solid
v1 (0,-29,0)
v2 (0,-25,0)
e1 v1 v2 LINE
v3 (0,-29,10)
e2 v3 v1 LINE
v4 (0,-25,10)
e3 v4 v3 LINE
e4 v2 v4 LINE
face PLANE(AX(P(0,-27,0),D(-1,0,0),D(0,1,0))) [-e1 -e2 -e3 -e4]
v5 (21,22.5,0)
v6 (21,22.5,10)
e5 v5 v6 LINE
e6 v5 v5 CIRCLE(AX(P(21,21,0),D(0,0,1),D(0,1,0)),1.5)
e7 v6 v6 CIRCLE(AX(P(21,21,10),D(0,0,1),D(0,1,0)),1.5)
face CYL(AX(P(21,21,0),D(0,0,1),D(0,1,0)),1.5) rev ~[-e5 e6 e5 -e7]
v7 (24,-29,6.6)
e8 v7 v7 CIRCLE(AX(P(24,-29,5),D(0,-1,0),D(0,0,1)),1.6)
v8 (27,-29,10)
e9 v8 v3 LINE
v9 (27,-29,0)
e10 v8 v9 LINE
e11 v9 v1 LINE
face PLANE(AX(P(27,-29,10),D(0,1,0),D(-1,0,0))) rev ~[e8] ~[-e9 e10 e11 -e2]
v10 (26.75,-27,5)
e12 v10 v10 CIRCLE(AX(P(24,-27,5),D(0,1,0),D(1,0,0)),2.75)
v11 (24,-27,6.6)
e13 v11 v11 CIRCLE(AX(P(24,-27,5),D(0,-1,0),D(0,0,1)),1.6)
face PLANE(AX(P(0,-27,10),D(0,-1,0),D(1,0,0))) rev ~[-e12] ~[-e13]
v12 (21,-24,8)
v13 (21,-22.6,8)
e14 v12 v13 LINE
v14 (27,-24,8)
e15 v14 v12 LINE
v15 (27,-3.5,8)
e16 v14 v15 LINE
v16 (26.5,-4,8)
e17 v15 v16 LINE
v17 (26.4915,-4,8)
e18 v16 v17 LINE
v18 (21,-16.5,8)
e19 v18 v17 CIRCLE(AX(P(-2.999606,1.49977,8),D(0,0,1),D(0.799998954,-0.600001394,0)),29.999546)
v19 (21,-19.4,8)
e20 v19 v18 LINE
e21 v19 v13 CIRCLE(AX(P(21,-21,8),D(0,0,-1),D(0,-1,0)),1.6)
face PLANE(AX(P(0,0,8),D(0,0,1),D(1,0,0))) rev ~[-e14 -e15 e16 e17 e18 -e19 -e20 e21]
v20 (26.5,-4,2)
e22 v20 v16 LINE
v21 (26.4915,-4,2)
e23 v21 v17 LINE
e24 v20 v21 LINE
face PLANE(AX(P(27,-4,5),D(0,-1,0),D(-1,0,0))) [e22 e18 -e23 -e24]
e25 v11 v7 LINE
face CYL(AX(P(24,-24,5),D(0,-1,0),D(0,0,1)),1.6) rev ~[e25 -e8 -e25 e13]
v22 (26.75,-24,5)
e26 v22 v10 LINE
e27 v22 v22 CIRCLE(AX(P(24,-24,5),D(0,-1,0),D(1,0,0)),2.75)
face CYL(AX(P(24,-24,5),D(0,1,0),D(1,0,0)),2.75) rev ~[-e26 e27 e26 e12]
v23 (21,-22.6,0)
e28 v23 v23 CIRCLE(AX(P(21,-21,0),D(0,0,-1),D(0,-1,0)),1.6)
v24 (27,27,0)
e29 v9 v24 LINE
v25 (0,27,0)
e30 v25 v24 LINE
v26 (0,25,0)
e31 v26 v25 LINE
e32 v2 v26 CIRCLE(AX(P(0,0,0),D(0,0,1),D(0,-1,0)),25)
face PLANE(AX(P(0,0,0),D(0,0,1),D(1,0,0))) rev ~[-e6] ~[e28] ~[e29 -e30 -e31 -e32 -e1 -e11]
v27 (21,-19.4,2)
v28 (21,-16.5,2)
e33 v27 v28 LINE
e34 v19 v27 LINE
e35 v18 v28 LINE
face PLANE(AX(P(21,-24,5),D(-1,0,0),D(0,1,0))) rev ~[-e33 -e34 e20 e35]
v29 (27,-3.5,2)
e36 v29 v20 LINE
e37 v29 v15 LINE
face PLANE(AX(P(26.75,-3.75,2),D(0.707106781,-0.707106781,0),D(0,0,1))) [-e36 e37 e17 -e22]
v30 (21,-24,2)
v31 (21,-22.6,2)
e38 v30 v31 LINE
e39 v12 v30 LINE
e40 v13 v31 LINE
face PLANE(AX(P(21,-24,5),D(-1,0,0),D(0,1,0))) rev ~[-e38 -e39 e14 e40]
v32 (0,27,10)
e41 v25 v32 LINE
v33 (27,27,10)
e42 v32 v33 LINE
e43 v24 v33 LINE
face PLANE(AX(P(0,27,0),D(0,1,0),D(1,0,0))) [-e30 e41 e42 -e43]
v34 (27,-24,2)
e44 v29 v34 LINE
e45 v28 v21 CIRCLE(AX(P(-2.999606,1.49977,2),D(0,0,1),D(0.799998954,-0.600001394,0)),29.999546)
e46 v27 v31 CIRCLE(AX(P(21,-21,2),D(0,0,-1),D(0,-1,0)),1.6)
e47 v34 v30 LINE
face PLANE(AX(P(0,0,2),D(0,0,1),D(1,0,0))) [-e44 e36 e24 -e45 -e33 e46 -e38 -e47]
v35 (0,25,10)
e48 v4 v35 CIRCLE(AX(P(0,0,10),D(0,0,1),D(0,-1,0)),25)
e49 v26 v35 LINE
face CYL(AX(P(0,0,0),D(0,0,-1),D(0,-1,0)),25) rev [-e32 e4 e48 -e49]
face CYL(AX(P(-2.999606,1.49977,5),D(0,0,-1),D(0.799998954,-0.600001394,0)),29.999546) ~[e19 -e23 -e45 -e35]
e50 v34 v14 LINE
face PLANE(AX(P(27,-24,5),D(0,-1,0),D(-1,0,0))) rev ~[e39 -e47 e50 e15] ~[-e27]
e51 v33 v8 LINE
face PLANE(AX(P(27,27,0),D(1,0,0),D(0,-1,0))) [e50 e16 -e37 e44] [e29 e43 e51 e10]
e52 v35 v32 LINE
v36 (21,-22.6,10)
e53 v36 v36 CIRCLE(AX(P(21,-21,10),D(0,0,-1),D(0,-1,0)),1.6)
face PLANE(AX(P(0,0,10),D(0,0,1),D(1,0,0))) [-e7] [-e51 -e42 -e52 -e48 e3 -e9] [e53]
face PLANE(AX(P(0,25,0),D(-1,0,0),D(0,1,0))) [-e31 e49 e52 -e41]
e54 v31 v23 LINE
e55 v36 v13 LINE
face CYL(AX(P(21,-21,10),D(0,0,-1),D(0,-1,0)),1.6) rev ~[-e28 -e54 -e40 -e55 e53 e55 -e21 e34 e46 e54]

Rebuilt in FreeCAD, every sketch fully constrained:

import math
import FreeCAD as App
import Part
import Sketcher
from FreeCAD import Vector


def edges_at(feature, points):
    """Names of the edges that pass closest to the given points."""
    edges = feature.Shape.Edges
    near = lambda p: min(range(len(edges)), key=lambda i: edges[i].distToShape(Part.Vertex(*p))[0])
    return sorted({f"Edge{near(p) + 1}" for p in points})


def add_polygon(sketch, points):
    """Adds a closed chain of lines whose ends are joined by coincident constraints."""
    first, n = sketch.GeometryCount, len(points)
    for a, b in zip(points, points[1:] + points[:1]):
        sketch.addGeometry(Part.LineSegment(App.Vector(*a, 0), App.Vector(*b, 0)), False)
    for i in range(n):
        sketch.addConstraint(Sketcher.Constraint("Coincident", first + i, 2, first + (i + 1) % n, 1))

doc = App.newDocument("Part")
body = doc.addObject("PartDesign::Body", "Body")

# Sketch on XY plane
sketch1 = body.newObject("Sketcher::SketchObject", "Sketch")
sketch1.AttachmentSupport = (doc.getObject("XY_Plane"), [""])
sketch1.MapMode = "FlatFace"
sketch1.addGeometry(Part.ArcOfCircle(Part.Circle(Vector(0, 0, 0), Vector(0, 0, 1), 25), math.radians(-90), math.radians(90)), False)
sketch1.addGeometry(Part.LineSegment(Vector(0, -25, 0), Vector(0, -27, 0)), False)
sketch1.addGeometry(Part.LineSegment(Vector(0, -27, 0), Vector(27, -27, 0)), False)
sketch1.addGeometry(Part.LineSegment(Vector(27, -27, 0), Vector(27, 27, 0)), False)
sketch1.addGeometry(Part.LineSegment(Vector(27, 27, 0), Vector(0, 27, 0)), False)
sketch1.addGeometry(Part.LineSegment(Vector(0, 27, 0), Vector(0, 25, 0)), False)
sketch1.addConstraint(Sketcher.Constraint("Coincident", 0, 1, 1, 1))
sketch1.addConstraint(Sketcher.Constraint("Coincident", 1, 2, 2, 1))
sketch1.addConstraint(Sketcher.Constraint("Coincident", 2, 2, 3, 1))
sketch1.addConstraint(Sketcher.Constraint("Coincident", 3, 2, 4, 1))
sketch1.addConstraint(Sketcher.Constraint("Coincident", 4, 2, 5, 1))
sketch1.addConstraint(Sketcher.Constraint("Coincident", 5, 2, 0, 2))
sketch1.addConstraint(Sketcher.Constraint("Vertical", 1))
sketch1.addConstraint(Sketcher.Constraint("Horizontal", 2))
sketch1.addConstraint(Sketcher.Constraint("Vertical", 3))
sketch1.addConstraint(Sketcher.Constraint("Horizontal", 4))
sketch1.addConstraint(Sketcher.Constraint("Vertical", 5))
sketch1.addConstraint(Sketcher.Constraint("Coincident", 0, 3, -1, 1))
sketch1.addConstraint(Sketcher.Constraint("Symmetric", 1, 2, 4, 2, -1, 1))
sketch1.addConstraint(Sketcher.Constraint("PointOnObject", 0, 1, -2))
sketch1.addConstraint(Sketcher.Constraint("Radius", 0, 25.0))
sketch1.addConstraint(Sketcher.Constraint("DistanceX", 2, 1, 2, 2, 27.0))
sketch1.addConstraint(Sketcher.Constraint("DistanceY", 1, 2, 1, 1, 2.0))
pad1 = body.newObject("PartDesign::Pad", "Pad")
pad1.Profile = sketch1
pad1.Length = 10

# Sketch on XY plane
sketch2 = body.newObject("Sketcher::SketchObject", "Sketch001")
sketch2.AttachmentSupport = (doc.getObject("XY_Plane"), [""])
sketch2.MapMode = "FlatFace"
sketch2.AttachmentOffset = App.Placement(Vector(0, 0, 5), App.Rotation())
sketch2.addGeometry(Part.LineSegment(Vector(21, -24, 0), Vector(27, -24, 0)), False)
sketch2.addGeometry(Part.LineSegment(Vector(27, -24, 0), Vector(27, -4, 0)), False)
sketch2.addGeometry(Part.LineSegment(Vector(27, -4, 0), Vector(26.5, -4, 0)), False)
sketch2.addGeometry(Part.ArcOfCircle(Part.Circle(Vector(-3, 1.5, 0), Vector(0, 0, 1), 30), math.radians(-37), math.radians(-11)), False)
sketch2.addGeometry(Part.LineSegment(Vector(21, -16.5, 0), Vector(21, -24, 0)), False)
sketch2.addConstraint(Sketcher.Constraint("Coincident", 0, 2, 1, 1))
sketch2.addConstraint(Sketcher.Constraint("Coincident", 1, 2, 2, 1))
sketch2.addConstraint(Sketcher.Constraint("Coincident", 2, 2, 3, 2))
sketch2.addConstraint(Sketcher.Constraint("Coincident", 3, 1, 4, 1))
sketch2.addConstraint(Sketcher.Constraint("Coincident", 4, 2, 0, 1))
sketch2.addConstraint(Sketcher.Constraint("Horizontal", 0))
sketch2.addConstraint(Sketcher.Constraint("Vertical", 1))
sketch2.addConstraint(Sketcher.Constraint("Horizontal", 2))
sketch2.addConstraint(Sketcher.Constraint("Vertical", 4))
sketch2.addConstraint(Sketcher.Constraint("Radius", 3, 30.0))
sketch2.addConstraint(Sketcher.Constraint("DistanceX", 0, 1, 0, 2, 6.0))
sketch2.addConstraint(Sketcher.Constraint("DistanceY", 1, 1, 1, 2, 20.0))
sketch2.addConstraint(Sketcher.Constraint("DistanceX", 3, 3, -1, 1, 3.0))
sketch2.addConstraint(Sketcher.Constraint("DistanceX", 3, 3, 0, 2, 30.0))
sketch2.addConstraint(Sketcher.Constraint("DistanceY", -1, 1, 3, 3, 1.5))
sketch2.addConstraint(Sketcher.Constraint("DistanceY", 4, 2, 4, 1, 7.5))
pocket1 = body.newObject("PartDesign::Pocket", "Pocket")
pocket1.Profile = sketch2
pocket1.Length = 6
pocket1.Midplane = True

# Sketch on XY plane
sketch3 = body.newObject("Sketcher::SketchObject", "Sketch002")
sketch3.AttachmentSupport = (doc.getObject("XY_Plane"), [""])
sketch3.MapMode = "FlatFace"
sketch3.AttachmentOffset = App.Placement(Vector(0, 0, 10), App.Rotation())
sketch3.addGeometry(Part.Circle(Vector(21, -21, 0), Vector(0, 0, 1), 1.6), False)
sketch3.addConstraint(Sketcher.Constraint("Diameter", 0, 3.2))
sketch3.addConstraint(Sketcher.Constraint("DistanceX", -1, 1, 0, 3, 21.0))
sketch3.addConstraint(Sketcher.Constraint("DistanceY", 0, 3, -1, 1, 21.0))
doc.recompute()
hole = body.newObject("PartDesign::Hole", "Hole")
hole.Profile = sketch3
hole.ThreadType = "None"
hole.Diameter = 3.2
hole.DepthType = "Dimension"
hole.Depth = 20
hole.DrillPoint = "Angled"
hole.DrillPointAngle = 118
doc.recompute()

chamfer = body.newObject("PartDesign::Chamfer", "Chamfer")
chamfer.Base = (hole, edges_at(hole, [(27, -4, 5)]))
chamfer.Size = 0.5

# Sketch on XZ plane
sketch4 = body.newObject("Sketcher::SketchObject", "Sketch003")
sketch4.AttachmentSupport = (doc.getObject("XZ_Plane"), [""])
sketch4.MapMode = "FlatFace"
sketch4.AttachmentOffset = App.Placement(Vector(0, 0, 24), App.Rotation())
sketch4.addGeometry(Part.Circle(Vector(24, 5, 0), Vector(0, 0, 1), 1.6), False)
sketch4.addConstraint(Sketcher.Constraint("Diameter", 0, 3.2))
sketch4.addConstraint(Sketcher.Constraint("DistanceX", -1, 1, 0, 3, 24.0))
sketch4.addConstraint(Sketcher.Constraint("DistanceY", -1, 1, 0, 3, 5.0))
doc.recompute()
hole2 = body.newObject("PartDesign::Hole", "Hole001")
hole2.Profile = sketch4
hole2.ThreadType = "None"
hole2.Diameter = 3.2
hole2.DepthType = "Dimension"
hole2.Depth = 20
hole2.DrillPoint = "Angled"
hole2.DrillPointAngle = 118
hole2.Reversed = True

# Sketch on XZ plane
sketch5 = body.newObject("Sketcher::SketchObject", "Sketch004")
sketch5.AttachmentSupport = (doc.getObject("XZ_Plane"), [""])
sketch5.MapMode = "FlatFace"
sketch5.AttachmentOffset = App.Placement(Vector(0, 0, 24), App.Rotation())
sketch5.addGeometry(Part.Circle(Vector(24, 5, 0), Vector(0, 0, 1), 2.8), False)
sketch5.addGeometry(Part.Circle(Vector(24, 5, 0), Vector(0, 0, 1), 1.6), False)
sketch5.addConstraint(Sketcher.Constraint("Coincident", 1, 3, 0, 3))
sketch5.addConstraint(Sketcher.Constraint("Diameter", 0, 5.5))
sketch5.addConstraint(Sketcher.Constraint("Diameter", 1, 3.2))
sketch5.addConstraint(Sketcher.Constraint("DistanceX", -1, 1, 0, 3, 24.0))
sketch5.addConstraint(Sketcher.Constraint("DistanceY", -1, 1, 0, 3, 5.0))
pocket2 = body.newObject("PartDesign::Pocket", "Pocket001")
pocket2.Profile = sketch5
pocket2.Length = 3
pocket2.Reversed = True

# Sketch on XY plane
sketch6 = body.newObject("Sketcher::SketchObject", "Sketch005")
sketch6.AttachmentSupport = (doc.getObject("XY_Plane"), [""])
sketch6.MapMode = "FlatFace"
sketch6.AttachmentOffset = App.Placement(Vector(0, 0, 10), App.Rotation())
add_polygon(sketch6, [(27, -27), (0, -27), (0, -29), (27, -29)])  # lines 0-3
sketch6.addConstraint(Sketcher.Constraint("Horizontal", 0))
sketch6.addConstraint(Sketcher.Constraint("Vertical", 1))
sketch6.addConstraint(Sketcher.Constraint("Horizontal", 2))
sketch6.addConstraint(Sketcher.Constraint("Vertical", 3))
sketch6.addConstraint(Sketcher.Constraint("PointOnObject", 0, 2, -2))
sketch6.addConstraint(Sketcher.Constraint("DistanceY", 1, 2, 1, 1, 2.0))
sketch6.addConstraint(Sketcher.Constraint("DistanceX", 0, 2, 0, 1, 27.0))
sketch6.addConstraint(Sketcher.Constraint("DistanceY", 0, 2, -1, 1, 27.0))
pad2 = body.newObject("PartDesign::Pad", "Pad001")
pad2.Profile = sketch6
pad2.Length = 10
pad2.Reversed = True

# Sketch on XZ plane
sketch7 = body.newObject("Sketcher::SketchObject", "Sketch006")
sketch7.AttachmentSupport = (doc.getObject("XZ_Plane"), [""])
sketch7.MapMode = "FlatFace"
sketch7.AttachmentOffset = App.Placement(Vector(0, 0, 24), App.Rotation())
sketch7.addGeometry(Part.Circle(Vector(24, 5, 0), Vector(0, 0, 1), 1.6), False)
sketch7.addConstraint(Sketcher.Constraint("Diameter", 0, 3.2))
sketch7.addConstraint(Sketcher.Constraint("DistanceX", -1, 1, 0, 3, 24.0))
sketch7.addConstraint(Sketcher.Constraint("DistanceY", -1, 1, 0, 3, 5.0))
doc.recompute()
hole3 = body.newObject("PartDesign::Hole", "Hole002")
hole3.Profile = sketch7
hole3.ThreadType = "None"
hole3.Diameter = 3.2
hole3.DepthType = "Dimension"
hole3.Depth = 20
hole3.DrillPoint = "Angled"
hole3.DrillPointAngle = 118
hole3.Reversed = True

# Sketch on XY plane
sketch8 = body.newObject("Sketcher::SketchObject", "Sketch007")
sketch8.AttachmentSupport = (doc.getObject("XY_Plane"), [""])
sketch8.MapMode = "FlatFace"
sketch8.addGeometry(Part.Circle(Vector(21, 21, 0), Vector(0, 0, 1), 1.5), False)
sketch8.addConstraint(Sketcher.Constraint("Diameter", 0, 3.0))
sketch8.addConstraint(Sketcher.Constraint("DistanceX", -1, 1, 0, 3, 21.0))
sketch8.addConstraint(Sketcher.Constraint("DistanceY", -1, 1, 0, 3, 21.0))
doc.recompute()
hole4 = body.newObject("PartDesign::Hole", "Hole003")
hole4.Profile = sketch8
hole4.ThreadType = "None"
hole4.Diameter = 3
hole4.DepthType = "Dimension"
hole4.Depth = 10
hole4.DrillPoint = "Flat"
hole4.Reversed = True

doc.recompute()
